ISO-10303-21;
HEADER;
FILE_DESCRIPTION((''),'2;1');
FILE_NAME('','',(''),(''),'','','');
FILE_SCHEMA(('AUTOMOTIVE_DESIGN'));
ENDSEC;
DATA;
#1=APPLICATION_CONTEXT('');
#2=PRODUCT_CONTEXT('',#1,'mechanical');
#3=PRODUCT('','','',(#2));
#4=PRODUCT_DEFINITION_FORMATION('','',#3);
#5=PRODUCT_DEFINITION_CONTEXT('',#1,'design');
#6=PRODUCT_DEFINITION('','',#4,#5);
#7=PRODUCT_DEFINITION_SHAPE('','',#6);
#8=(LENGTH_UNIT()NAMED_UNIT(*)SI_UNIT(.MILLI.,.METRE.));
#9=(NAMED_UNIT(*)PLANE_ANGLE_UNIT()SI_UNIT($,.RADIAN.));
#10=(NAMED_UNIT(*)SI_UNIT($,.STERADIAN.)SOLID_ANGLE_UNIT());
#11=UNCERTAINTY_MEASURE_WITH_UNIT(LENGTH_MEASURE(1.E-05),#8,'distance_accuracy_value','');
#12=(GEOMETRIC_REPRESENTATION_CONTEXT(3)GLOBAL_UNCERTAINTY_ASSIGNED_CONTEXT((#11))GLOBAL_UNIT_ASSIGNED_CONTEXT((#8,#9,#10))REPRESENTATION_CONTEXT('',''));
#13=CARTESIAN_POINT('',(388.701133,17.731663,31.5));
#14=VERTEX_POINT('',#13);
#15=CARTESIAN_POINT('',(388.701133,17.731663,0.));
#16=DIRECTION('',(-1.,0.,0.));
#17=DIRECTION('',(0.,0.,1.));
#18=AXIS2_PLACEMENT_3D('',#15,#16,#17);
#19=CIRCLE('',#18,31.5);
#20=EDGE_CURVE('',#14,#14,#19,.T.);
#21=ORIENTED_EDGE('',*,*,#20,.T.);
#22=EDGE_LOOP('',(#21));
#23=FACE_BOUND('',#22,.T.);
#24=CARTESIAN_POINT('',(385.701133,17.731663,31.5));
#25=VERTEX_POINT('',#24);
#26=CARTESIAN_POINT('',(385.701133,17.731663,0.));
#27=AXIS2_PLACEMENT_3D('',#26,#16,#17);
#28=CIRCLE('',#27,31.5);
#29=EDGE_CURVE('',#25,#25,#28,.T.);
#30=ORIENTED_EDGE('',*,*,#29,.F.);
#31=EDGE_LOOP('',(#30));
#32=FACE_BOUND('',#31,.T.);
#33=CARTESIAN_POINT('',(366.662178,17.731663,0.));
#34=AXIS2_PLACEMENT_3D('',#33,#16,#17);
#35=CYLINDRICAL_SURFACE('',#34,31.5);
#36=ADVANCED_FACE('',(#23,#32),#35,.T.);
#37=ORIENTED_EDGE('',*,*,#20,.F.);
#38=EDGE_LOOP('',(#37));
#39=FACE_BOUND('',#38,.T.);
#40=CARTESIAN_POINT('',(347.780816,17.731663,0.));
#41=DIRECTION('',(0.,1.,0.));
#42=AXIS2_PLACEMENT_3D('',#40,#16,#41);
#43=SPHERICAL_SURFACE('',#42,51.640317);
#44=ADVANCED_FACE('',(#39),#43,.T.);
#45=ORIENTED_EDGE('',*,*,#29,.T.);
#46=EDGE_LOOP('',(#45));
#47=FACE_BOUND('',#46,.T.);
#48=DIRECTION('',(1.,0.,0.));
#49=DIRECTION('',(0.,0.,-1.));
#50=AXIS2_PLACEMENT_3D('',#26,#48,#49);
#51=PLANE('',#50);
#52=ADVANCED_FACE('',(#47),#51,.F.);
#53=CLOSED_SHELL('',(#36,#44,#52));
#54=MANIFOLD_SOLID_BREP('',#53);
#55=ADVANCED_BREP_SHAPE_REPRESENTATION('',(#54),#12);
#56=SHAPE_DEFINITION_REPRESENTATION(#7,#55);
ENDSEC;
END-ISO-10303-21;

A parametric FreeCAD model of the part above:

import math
import FreeCAD as App
import Part
import Sketcher
from FreeCAD import Vector

doc = App.newDocument("Part")
params = doc.addObject("Spreadsheet::Sheet", "Params")
for row, (alias, value) in enumerate([
    ("sketch1_width", "3 mm"),
    ("sketch1_height", "31.5 mm"),
    ("sketch1_width2", "13.72 mm"),
    ("revolution_angle", "360 deg"),
], start=1):
    params.set(f"A{row}", alias)
    params.set(f"B{row}", "=" + value)
    params.setAlias(f"B{row}", alias)

body = doc.addObject("PartDesign::Body", "Body")

sketch1 = body.newObject("Sketcher::SketchObject", "Sketch")
sketch1.AttachmentSupport = (doc.getObject("XY_Plane"), [""])
sketch1.MapMode = "FlatFace"
sketch1.addGeometry(Part.LineSegment(Vector(385.7, 49.2, 0), Vector(385.7, 17.7, 0)), False)
sketch1.addGeometry(Part.LineSegment(Vector(385.7, 17.7, 0), Vector(399.4, 17.7, 0)), False)
sketch1.addGeometry(Part.ArcOfCircle(Part.Circle(Vector(347.8, 17.7, 0), Vector(0, 0, 1), 51.6), math.radians(0), math.radians(38)), False)
sketch1.addGeometry(Part.LineSegment(Vector(388.7, 49.2, 0), Vector(385.7, 49.2, 0)), False)
sketch1.addGeometry(Part.LineSegment(Vector(347.8, 17.7, 0), Vector(399.4, 17.7, 0)), True)
sketch1.addConstraint(Sketcher.Constraint("Coincident", 0, 2, 1, 1))
sketch1.addConstraint(Sketcher.Constraint("Coincident", 1, 2, 2, 1))
sketch1.addConstraint(Sketcher.Constraint("Coincident", 2, 2, 3, 1))
sketch1.addConstraint(Sketcher.Constraint("Coincident", 3, 2, 0, 1))
sketch1.addConstraint(Sketcher.Constraint("Vertical", 0))
sketch1.addConstraint(Sketcher.Constraint("Horizontal", 1))
sketch1.addConstraint(Sketcher.Constraint("Horizontal", 3))
sketch1.addConstraint(Sketcher.Constraint("Horizontal", 4))
sketch1.addConstraint(Sketcher.Constraint("Coincident", 4, 1, 2, 3))
sketch1.addConstraint(Sketcher.Constraint("Coincident", 4, 2, 1, 2))
sketch1.addConstraint(Sketcher.Constraint("DistanceX", 3, 2, 3, 1, 3.0))
sketch1.addConstraint(Sketcher.Constraint("DistanceY", 0, 2, 0, 1, 31.5))
sketch1.addConstraint(Sketcher.Constraint("DistanceX", 1, 1, 1, 2, 13.72))
sketch1.addConstraint(Sketcher.Constraint("DistanceX", -1, 1, 2, 3, 347.780816))
sketch1.addConstraint(Sketcher.Constraint("DistanceY", -1, 1, 2, 3, 17.731663))
sketch1.setExpression("Constraints[10]", "Params.sketch1_width")
sketch1.setExpression("Constraints[11]", "Params.sketch1_height")
sketch1.setExpression("Constraints[12]", "Params.sketch1_width2")
revolution = body.newObject("PartDesign::Revolution", "Revolution")
revolution.Profile = sketch1
revolution.ReferenceAxis = (sketch1, ["Axis0"])
revolution.setExpression("Angle", "Params.revolution_angle")

doc.recompute()
